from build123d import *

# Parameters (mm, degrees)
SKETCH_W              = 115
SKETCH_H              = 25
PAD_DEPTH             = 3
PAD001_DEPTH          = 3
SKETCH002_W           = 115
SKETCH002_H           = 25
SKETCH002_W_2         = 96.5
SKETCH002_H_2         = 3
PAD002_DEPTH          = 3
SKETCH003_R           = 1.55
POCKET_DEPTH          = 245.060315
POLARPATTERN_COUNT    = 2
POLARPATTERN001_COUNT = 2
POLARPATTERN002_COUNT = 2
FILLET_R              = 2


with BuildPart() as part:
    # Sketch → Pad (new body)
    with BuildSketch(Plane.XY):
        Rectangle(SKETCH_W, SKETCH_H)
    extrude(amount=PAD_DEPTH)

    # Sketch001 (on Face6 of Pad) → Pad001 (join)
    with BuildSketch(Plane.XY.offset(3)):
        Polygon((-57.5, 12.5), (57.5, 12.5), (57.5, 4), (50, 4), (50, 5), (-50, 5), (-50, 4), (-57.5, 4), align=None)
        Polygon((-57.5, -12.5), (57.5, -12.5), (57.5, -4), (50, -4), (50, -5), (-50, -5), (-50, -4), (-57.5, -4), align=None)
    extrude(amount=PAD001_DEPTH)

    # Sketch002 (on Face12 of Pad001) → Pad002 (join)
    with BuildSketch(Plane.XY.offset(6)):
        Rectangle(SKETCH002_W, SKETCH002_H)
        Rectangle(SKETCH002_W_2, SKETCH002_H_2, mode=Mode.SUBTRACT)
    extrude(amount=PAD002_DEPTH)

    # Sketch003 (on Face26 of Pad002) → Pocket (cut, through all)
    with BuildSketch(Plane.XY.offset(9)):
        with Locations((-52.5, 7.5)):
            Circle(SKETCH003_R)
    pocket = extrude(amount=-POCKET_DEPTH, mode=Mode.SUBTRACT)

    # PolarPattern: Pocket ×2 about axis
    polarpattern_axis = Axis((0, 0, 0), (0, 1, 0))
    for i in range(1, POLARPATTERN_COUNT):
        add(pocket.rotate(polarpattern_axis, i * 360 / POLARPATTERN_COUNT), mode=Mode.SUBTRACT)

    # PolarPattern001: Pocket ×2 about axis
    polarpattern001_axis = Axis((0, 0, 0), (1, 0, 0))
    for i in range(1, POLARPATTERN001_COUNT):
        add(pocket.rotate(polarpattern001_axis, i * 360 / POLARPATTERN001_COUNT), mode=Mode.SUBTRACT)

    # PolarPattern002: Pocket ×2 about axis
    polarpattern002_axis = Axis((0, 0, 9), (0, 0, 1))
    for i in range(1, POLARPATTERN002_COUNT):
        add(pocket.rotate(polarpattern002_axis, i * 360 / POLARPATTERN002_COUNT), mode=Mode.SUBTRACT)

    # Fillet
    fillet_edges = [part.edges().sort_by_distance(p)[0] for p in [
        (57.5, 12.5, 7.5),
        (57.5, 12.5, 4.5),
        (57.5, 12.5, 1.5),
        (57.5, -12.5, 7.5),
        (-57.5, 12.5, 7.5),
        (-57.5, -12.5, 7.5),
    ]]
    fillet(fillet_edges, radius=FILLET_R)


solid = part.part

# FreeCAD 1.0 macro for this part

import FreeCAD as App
import Part
import Sketcher
from FreeCAD import Vector
Q = App.Units.Quantity


def edges_at(feature, points):
    """Names of the edges that pass closest to the given points."""
    edges = feature.Shape.Edges
    near = lambda p: min(range(len(edges)), key=lambda i: edges[i].distToShape(Part.Vertex(*p))[0])
    return sorted({f"Edge{near(p) + 1}" for p in points})


def add_polygon(sketch, points):
    """Adds a closed chain of lines whose ends are joined by coincident constraints."""
    first, n = sketch.GeometryCount, len(points)
    for a, b in zip(points, points[1:] + points[:1]):
        sketch.addGeometry(Part.LineSegment(App.Vector(*a, 0), App.Vector(*b, 0)), False)
    for i in range(n):
        sketch.addConstraint(Sketcher.Constraint("Coincident", first + i, 2, first + (i + 1) % n, 1))

doc = App.newDocument("Part")
params = doc.addObject("Spreadsheet::Sheet", "Params")
for row, (alias, value) in enumerate([
    ("sketch1_width", "115 mm"),
    ("sketch1_height", "25 mm"),
    ("pad1_length", "3 mm"),
    ("sketch2_width", "115 mm"),
    ("sketch2_width2", "100 mm"),
    ("sketch2_height", "1 mm"),
    ("sketch2_height2", "8.5 mm"),
    ("pad2_length", "3 mm"),
    ("sketch3_width", "115 mm"),
    ("sketch3_height", "25 mm"),
    ("sketch3_height2", "3 mm"),
    ("sketch3_width2", "96.5 mm"),
    ("pad3_length", "3 mm"),
    ("sketch4_diameter", "3.1 mm"),
    ("fillet_radius", "2 mm"),
], start=1):
    params.set(f"A{row}", alias)
    params.set(f"B{row}", "=" + value)
    params.setAlias(f"B{row}", alias)

body = doc.addObject("PartDesign::Body", "Body")

sketch1 = body.newObject("Sketcher::SketchObject", "Sketch")
sketch1.AttachmentSupport = (doc.getObject("XY_Plane"), [""])
sketch1.MapMode = "FlatFace"
add_polygon(sketch1, [(-58, 12), (-58, -12), (58, -12), (58, 12)])
sketch1.addConstraint([
    Sketcher.Constraint("Vertical", 0),
    Sketcher.Constraint("Horizontal", 1),
    Sketcher.Constraint("Vertical", 2),
    Sketcher.Constraint("Horizontal", 3),
    Sketcher.Constraint("Symmetric", 0, 2, 2, 2, -1, 1),
    Sketcher.Constraint("DistanceX", 1, 1, 1, 2, Q("115 mm")),
    Sketcher.Constraint("DistanceY", 0, 2, 0, 1, Q("25 mm")),
])
sketch1.setExpression("Constraints[9]", "Params.sketch1_width")
sketch1.setExpression("Constraints[10]", "Params.sketch1_height")
pad1 = body.newObject("PartDesign::Pad", "Pad")
pad1.Profile = sketch1
pad1.setExpression("Length", "Params.pad1_length")

sketch2 = body.newObject("Sketcher::SketchObject", "Sketch001")
sketch2.AttachmentSupport = (doc.getObject("XY_Plane"), [""])
sketch2.MapMode = "FlatFace"
sketch2.AttachmentOffset = App.Placement(Vector(0, 0, 3), App.Rotation())
add_polygon(sketch2, [(57.5, 12.5), (-57.5, 12.5), (-57.5, 4), (-50, 4), (-50, 5), (50, 5), (50, 4), (57.5, 4)])
add_polygon(sketch2, [(-57.5, -12.5), (57.5, -12.5), (57.5, -4), (50, -4), (50, -5), (-50, -5), (-50, -4), (-57.5, -4)])
sketch2.addConstraint([
    Sketcher.Constraint("Horizontal", 0),
    Sketcher.Constraint("Vertical", 1),
    Sketcher.Constraint("Horizontal", 2),
    Sketcher.Constraint("Vertical", 3),
    Sketcher.Constraint("Horizontal", 4),
    Sketcher.Constraint("Vertical", 5),
    Sketcher.Constraint("Horizontal", 6),
    Sketcher.Constraint("Vertical", 7),
    Sketcher.Constraint("Horizontal", 8),
    Sketcher.Constraint("Vertical", 9),
    Sketcher.Constraint("Horizontal", 10),
    Sketcher.Constraint("Vertical", 11),
    Sketcher.Constraint("Horizontal", 12),
    Sketcher.Constraint("Vertical", 13),
    Sketcher.Constraint("Horizontal", 14),
    Sketcher.Constraint("Vertical", 15),
    Sketcher.Constraint("Symmetric", 0, 2, 8, 2, -1, 1),
    Sketcher.Constraint("Symmetric", 2, 2, 10, 2, -1, 1),
    Sketcher.Constraint("Symmetric", 4, 2, 12, 2, -1, 1),
    Sketcher.Constraint("Symmetric", 6, 2, 14, 2, -1, 1),
    Sketcher.Constraint("Symmetric", 2, 2, 5, 2, -2),
    Sketcher.Constraint("Vertical", 7, 2, 8, 2),
    Sketcher.Constraint("DistanceX", 0, 2, 0, 1, Q("115 mm")),
    Sketcher.Constraint("DistanceX", 4, 1, 4, 2, Q("100 mm")),
    Sketcher.Constraint("DistanceY", 3, 1, 3, 2, Q("1 mm")),
    Sketcher.Constraint("DistanceY", 1, 2, 1, 1, Q("8.5 mm")),
    Sketcher.Constraint("DistanceY", -1, 1, 1, 2, Q("4 mm")),
])
sketch2.setExpression("Constraints[38]", "Params.sketch2_width")
sketch2.setExpression("Constraints[39]", "Params.sketch2_width2")
sketch2.setExpression("Constraints[40]", "Params.sketch2_height")
sketch2.setExpression("Constraints[41]", "Params.sketch2_height2")
pad2 = body.newObject("PartDesign::Pad", "Pad001")
pad2.Profile = sketch2
pad2.setExpression("Length", "Params.pad2_length")

sketch3 = body.newObject("Sketcher::SketchObject", "Sketch002")
sketch3.AttachmentSupport = (doc.getObject("XY_Plane"), [""])
sketch3.MapMode = "FlatFace"
sketch3.AttachmentOffset = App.Placement(Vector(0, 0, 6), App.Rotation())
add_polygon(sketch3, [(-57.5, 12.5), (-57.5, -12.5), (57.5, -12.5), (57.5, 12.5)])
add_polygon(sketch3, [(48.2, -1.5), (-48.2, -1.5), (-48.2, 1.5), (48.2, 1.5)])
sketch3.addConstraint([
    Sketcher.Constraint("Vertical", 0),
    Sketcher.Constraint("Horizontal", 1),
    Sketcher.Constraint("Vertical", 2),
    Sketcher.Constraint("Horizontal", 3),
    Sketcher.Constraint("Horizontal", 4),
    Sketcher.Constraint("Vertical", 5),
    Sketcher.Constraint("Horizontal", 6),
    Sketcher.Constraint("Vertical", 7),
    Sketcher.Constraint("Symmetric", 0, 2, 2, 2, -1, 1),
    Sketcher.Constraint("Symmetric", 4, 2, 6, 2, -1, 1),
    Sketcher.Constraint("DistanceX", 1, 1, 1, 2, Q("115 mm")),
    Sketcher.Constraint("DistanceY", 0, 2, 0, 1, Q("25 mm")),
    Sketcher.Constraint("DistanceY", 5, 1, 5, 2, Q("3 mm")),
    Sketcher.Constraint("DistanceX", 4, 2, 4, 1, Q("96.5 mm")),
])
sketch3.setExpression("Constraints[18]", "Params.sketch3_width")
sketch3.setExpression("Constraints[19]", "Params.sketch3_height")
sketch3.setExpression("Constraints[20]", "Params.sketch3_height2")
sketch3.setExpression("Constraints[21]", "Params.sketch3_width2")
pad3 = body.newObject("PartDesign::Pad", "Pad002")
pad3.Profile = sketch3
pad3.setExpression("Length", "Params.pad3_length")

sketch4 = body.newObject("Sketcher::SketchObject", "Sketch003")
sketch4.AttachmentSupport = (doc.getObject("XY_Plane"), [""])
sketch4.MapMode = "FlatFace"
sketch4.AttachmentOffset = App.Placement(Vector(0, 0, 9), App.Rotation())
sketch4.addGeometry(Part.Circle(Vector(-52.5, 7.5, 0), Vector(0, 0, 1), 1.6), False)
sketch4.addConstraint([
    Sketcher.Constraint("Diameter", 0, Q("3.1 mm")),
    Sketcher.Constraint("DistanceX", 0, 3, -1, 1, Q("52.5 mm")),
    Sketcher.Constraint("DistanceY", -1, 1, 0, 3, Q("7.5 mm")),
])
sketch4.setExpression("Constraints[0]", "Params.sketch4_diameter")
pocket1 = body.newObject("PartDesign::Pocket", "Pocket")
pocket1.Profile = sketch4
pocket1.Type = "ThroughAll"
doc.recompute()

polarpattern = body.newObject("PartDesign::PolarPattern", "PolarPattern")
polarpattern.Originals = [pocket1]
polarpattern.Axis = (doc.getObject("Y_Axis"), [""])
polarpattern.Angle = 360
polarpattern.Occurrences = 2
body.Tip = polarpattern
doc.recompute()

polarpattern2 = body.newObject("PartDesign::PolarPattern", "PolarPattern001")
polarpattern2.Originals = [pocket1]
polarpattern2.Axis = (doc.getObject("X_Axis"), [""])
polarpattern2.Angle = 360
polarpattern2.Occurrences = 2
body.Tip = polarpattern2
doc.recompute()

polarpattern3 = body.newObject("PartDesign::PolarPattern", "PolarPattern002")
polarpattern3.Originals = [pocket1]
polarpattern3.Axis = (doc.getObject("Z_Axis"), [""])
polarpattern3.Angle = 360
polarpattern3.Occurrences = 2
body.Tip = polarpattern3
doc.recompute()

fillet = body.newObject("PartDesign::Fillet", "Fillet")
fillet.Base = (polarpattern3, edges_at(polarpattern3, [
    (57.5, 12.5, 4.5),
    (57.5, 12.5, 4.5),
    (57.5, 12.5, 4.5),
    (57.5, -12.5, 4.5),
    (-57.5, 12.5, 4.5),
    (-57.5, -12.5, 4.5),
]))
fillet.setExpression("Radius", "Params.fillet_radius")

doc.recompute()
